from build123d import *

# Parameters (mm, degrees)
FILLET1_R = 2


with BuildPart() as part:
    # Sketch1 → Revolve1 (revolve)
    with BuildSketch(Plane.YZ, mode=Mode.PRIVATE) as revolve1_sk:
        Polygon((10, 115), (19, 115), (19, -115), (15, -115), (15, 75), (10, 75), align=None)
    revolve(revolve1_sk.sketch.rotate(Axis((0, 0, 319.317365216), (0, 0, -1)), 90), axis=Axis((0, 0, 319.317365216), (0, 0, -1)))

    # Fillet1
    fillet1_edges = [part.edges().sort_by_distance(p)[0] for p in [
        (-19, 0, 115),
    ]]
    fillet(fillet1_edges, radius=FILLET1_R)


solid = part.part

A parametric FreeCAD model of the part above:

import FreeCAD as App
import Part
import Sketcher


def edges_at(feature, points):
    """Names of the edges that pass closest to the given points."""
    edges = feature.Shape.Edges
    near = lambda p: min(range(len(edges)), key=lambda i: edges[i].distToShape(Part.Vertex(*p))[0])
    return sorted({f"Edge{near(p) + 1}" for p in points})

doc = App.newDocument("Part")
body = doc.addObject("PartDesign::Body", "Body")

# Sketch on YZ plane
sketch1 = doc.addObject("Sketcher::SketchObject", "Sketch")
body.addObject(sketch1)
sketch1.AttachmentSupport = (doc.YZ_Plane, [""])
sketch1.MapMode = "FlatFace"
sketch1.addGeometry([
    Part.LineSegment(App.Vector(19, 115, 0), App.Vector(10, 115, 0)),  # 0
    Part.LineSegment(App.Vector(10, 115, 0), App.Vector(10, 75, 0)),  # 1
    Part.LineSegment(App.Vector(10, 75, 0), App.Vector(15, 75, 0)),  # 2
    Part.LineSegment(App.Vector(15, 75, 0), App.Vector(15, -115, 0)),  # 3
    Part.LineSegment(App.Vector(15, -115, 0), App.Vector(19, -115, 0)),  # 4
    Part.LineSegment(App.Vector(19, -115, 0), App.Vector(19, 115, 0)),  # 5
], False)
sketch1.addConstraint([
    Sketcher.Constraint("Coincident", 0, 2, 1, 1),
    Sketcher.Constraint("Coincident", 1, 2, 2, 1),
    Sketcher.Constraint("Coincident", 2, 2, 3, 1),
    Sketcher.Constraint("Coincident", 3, 2, 4, 1),
    Sketcher.Constraint("Coincident", 4, 2, 5, 1),
    Sketcher.Constraint("Coincident", 5, 2, 0, 1),
    Sketcher.Constraint("Horizontal", 0),
    Sketcher.Constraint("Vertical", 1),
    Sketcher.Constraint("Horizontal", 2),
    Sketcher.Constraint("Vertical", 3),
    Sketcher.Constraint("Horizontal", 4),
    Sketcher.Constraint("Vertical", 5),
    Sketcher.Constraint("DistanceX", 0, 2, 0, 1, 9.0),
    Sketcher.Constraint("DistanceX", 2, 1, 2, 2, 5.0),
    Sketcher.Constraint("DistanceY", 1, 2, 1, 1, 40.0),
    Sketcher.Constraint("DistanceY", 3, 2, 3, 1, 190.0),
    Sketcher.Constraint("DistanceX", -1, 1, 0, 2, 10.0),
    Sketcher.Constraint("DistanceY", -1, 1, 0, 2, 115.0),
])
revolution = doc.addObject("PartDesign::Revolution", "Revolution")
body.addObject(revolution)
revolution.Profile = sketch1
revolution.ReferenceAxis = (sketch1, ["V_Axis"])
revolution.Angle = 360
doc.recompute()

fillet = doc.addObject("PartDesign::Fillet", "Fillet")
body.addObject(fillet)
fillet.Base = (revolution, edges_at(revolution, [(-19, 0, 115)]))
fillet.Radius = 2

doc.recompute()
